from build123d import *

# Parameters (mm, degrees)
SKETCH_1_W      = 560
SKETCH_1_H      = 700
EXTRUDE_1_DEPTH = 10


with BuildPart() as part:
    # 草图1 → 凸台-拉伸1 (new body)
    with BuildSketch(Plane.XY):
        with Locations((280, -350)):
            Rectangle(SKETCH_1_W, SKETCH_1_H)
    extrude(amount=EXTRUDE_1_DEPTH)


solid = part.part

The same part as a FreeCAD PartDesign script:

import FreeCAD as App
import Part
import Sketcher

V = App.Vector

doc = App.newDocument("Part")
body = doc.addObject("PartDesign::Body", "Body")

sketch1 = body.newObject("Sketcher::SketchObject", "Sketch")
sketch1.AttachmentSupport = (doc.getObject("XY_Plane"), [""])
sketch1.MapMode = "FlatFace"
sketch1.addGeometry(Part.LineSegment(V(0, 0, 0), V(0, -700, 0)), False)
sketch1.addGeometry(Part.LineSegment(V(0, -700, 0), V(560, -700, 0)), False)
sketch1.addGeometry(Part.LineSegment(V(560, -700, 0), V(560, 0, 0)), False)
sketch1.addGeometry(Part.LineSegment(V(560, 0, 0), V(0, 0, 0)), False)
sketch1.addConstraint(Sketcher.Constraint("Coincident", 0, 2, 1, 1))
sketch1.addConstraint(Sketcher.Constraint("Coincident", 1, 2, 2, 1))
sketch1.addConstraint(Sketcher.Constraint("Coincident", 2, 2, 3, 1))
sketch1.addConstraint(Sketcher.Constraint("Coincident", 3, 2, 0, 1))
sketch1.addConstraint(Sketcher.Constraint("Vertical", 0))
sketch1.addConstraint(Sketcher.Constraint("Horizontal", 1))
sketch1.addConstraint(Sketcher.Constraint("Vertical", 2))
sketch1.addConstraint(Sketcher.Constraint("Horizontal", 3))
sketch1.addConstraint(Sketcher.Constraint("Coincident", 3, 2, -1, 1))
sketch1.addConstraint(Sketcher.Constraint("DistanceX", 1, 1, 1, 2, 560.0))
sketch1.addConstraint(Sketcher.Constraint("DistanceY", 0, 2, 0, 1, 700.0))
pad1 = body.newObject("PartDesign::Pad", "Pad")
pad1.Profile = sketch1
pad1.Length = 10

doc.recompute()
